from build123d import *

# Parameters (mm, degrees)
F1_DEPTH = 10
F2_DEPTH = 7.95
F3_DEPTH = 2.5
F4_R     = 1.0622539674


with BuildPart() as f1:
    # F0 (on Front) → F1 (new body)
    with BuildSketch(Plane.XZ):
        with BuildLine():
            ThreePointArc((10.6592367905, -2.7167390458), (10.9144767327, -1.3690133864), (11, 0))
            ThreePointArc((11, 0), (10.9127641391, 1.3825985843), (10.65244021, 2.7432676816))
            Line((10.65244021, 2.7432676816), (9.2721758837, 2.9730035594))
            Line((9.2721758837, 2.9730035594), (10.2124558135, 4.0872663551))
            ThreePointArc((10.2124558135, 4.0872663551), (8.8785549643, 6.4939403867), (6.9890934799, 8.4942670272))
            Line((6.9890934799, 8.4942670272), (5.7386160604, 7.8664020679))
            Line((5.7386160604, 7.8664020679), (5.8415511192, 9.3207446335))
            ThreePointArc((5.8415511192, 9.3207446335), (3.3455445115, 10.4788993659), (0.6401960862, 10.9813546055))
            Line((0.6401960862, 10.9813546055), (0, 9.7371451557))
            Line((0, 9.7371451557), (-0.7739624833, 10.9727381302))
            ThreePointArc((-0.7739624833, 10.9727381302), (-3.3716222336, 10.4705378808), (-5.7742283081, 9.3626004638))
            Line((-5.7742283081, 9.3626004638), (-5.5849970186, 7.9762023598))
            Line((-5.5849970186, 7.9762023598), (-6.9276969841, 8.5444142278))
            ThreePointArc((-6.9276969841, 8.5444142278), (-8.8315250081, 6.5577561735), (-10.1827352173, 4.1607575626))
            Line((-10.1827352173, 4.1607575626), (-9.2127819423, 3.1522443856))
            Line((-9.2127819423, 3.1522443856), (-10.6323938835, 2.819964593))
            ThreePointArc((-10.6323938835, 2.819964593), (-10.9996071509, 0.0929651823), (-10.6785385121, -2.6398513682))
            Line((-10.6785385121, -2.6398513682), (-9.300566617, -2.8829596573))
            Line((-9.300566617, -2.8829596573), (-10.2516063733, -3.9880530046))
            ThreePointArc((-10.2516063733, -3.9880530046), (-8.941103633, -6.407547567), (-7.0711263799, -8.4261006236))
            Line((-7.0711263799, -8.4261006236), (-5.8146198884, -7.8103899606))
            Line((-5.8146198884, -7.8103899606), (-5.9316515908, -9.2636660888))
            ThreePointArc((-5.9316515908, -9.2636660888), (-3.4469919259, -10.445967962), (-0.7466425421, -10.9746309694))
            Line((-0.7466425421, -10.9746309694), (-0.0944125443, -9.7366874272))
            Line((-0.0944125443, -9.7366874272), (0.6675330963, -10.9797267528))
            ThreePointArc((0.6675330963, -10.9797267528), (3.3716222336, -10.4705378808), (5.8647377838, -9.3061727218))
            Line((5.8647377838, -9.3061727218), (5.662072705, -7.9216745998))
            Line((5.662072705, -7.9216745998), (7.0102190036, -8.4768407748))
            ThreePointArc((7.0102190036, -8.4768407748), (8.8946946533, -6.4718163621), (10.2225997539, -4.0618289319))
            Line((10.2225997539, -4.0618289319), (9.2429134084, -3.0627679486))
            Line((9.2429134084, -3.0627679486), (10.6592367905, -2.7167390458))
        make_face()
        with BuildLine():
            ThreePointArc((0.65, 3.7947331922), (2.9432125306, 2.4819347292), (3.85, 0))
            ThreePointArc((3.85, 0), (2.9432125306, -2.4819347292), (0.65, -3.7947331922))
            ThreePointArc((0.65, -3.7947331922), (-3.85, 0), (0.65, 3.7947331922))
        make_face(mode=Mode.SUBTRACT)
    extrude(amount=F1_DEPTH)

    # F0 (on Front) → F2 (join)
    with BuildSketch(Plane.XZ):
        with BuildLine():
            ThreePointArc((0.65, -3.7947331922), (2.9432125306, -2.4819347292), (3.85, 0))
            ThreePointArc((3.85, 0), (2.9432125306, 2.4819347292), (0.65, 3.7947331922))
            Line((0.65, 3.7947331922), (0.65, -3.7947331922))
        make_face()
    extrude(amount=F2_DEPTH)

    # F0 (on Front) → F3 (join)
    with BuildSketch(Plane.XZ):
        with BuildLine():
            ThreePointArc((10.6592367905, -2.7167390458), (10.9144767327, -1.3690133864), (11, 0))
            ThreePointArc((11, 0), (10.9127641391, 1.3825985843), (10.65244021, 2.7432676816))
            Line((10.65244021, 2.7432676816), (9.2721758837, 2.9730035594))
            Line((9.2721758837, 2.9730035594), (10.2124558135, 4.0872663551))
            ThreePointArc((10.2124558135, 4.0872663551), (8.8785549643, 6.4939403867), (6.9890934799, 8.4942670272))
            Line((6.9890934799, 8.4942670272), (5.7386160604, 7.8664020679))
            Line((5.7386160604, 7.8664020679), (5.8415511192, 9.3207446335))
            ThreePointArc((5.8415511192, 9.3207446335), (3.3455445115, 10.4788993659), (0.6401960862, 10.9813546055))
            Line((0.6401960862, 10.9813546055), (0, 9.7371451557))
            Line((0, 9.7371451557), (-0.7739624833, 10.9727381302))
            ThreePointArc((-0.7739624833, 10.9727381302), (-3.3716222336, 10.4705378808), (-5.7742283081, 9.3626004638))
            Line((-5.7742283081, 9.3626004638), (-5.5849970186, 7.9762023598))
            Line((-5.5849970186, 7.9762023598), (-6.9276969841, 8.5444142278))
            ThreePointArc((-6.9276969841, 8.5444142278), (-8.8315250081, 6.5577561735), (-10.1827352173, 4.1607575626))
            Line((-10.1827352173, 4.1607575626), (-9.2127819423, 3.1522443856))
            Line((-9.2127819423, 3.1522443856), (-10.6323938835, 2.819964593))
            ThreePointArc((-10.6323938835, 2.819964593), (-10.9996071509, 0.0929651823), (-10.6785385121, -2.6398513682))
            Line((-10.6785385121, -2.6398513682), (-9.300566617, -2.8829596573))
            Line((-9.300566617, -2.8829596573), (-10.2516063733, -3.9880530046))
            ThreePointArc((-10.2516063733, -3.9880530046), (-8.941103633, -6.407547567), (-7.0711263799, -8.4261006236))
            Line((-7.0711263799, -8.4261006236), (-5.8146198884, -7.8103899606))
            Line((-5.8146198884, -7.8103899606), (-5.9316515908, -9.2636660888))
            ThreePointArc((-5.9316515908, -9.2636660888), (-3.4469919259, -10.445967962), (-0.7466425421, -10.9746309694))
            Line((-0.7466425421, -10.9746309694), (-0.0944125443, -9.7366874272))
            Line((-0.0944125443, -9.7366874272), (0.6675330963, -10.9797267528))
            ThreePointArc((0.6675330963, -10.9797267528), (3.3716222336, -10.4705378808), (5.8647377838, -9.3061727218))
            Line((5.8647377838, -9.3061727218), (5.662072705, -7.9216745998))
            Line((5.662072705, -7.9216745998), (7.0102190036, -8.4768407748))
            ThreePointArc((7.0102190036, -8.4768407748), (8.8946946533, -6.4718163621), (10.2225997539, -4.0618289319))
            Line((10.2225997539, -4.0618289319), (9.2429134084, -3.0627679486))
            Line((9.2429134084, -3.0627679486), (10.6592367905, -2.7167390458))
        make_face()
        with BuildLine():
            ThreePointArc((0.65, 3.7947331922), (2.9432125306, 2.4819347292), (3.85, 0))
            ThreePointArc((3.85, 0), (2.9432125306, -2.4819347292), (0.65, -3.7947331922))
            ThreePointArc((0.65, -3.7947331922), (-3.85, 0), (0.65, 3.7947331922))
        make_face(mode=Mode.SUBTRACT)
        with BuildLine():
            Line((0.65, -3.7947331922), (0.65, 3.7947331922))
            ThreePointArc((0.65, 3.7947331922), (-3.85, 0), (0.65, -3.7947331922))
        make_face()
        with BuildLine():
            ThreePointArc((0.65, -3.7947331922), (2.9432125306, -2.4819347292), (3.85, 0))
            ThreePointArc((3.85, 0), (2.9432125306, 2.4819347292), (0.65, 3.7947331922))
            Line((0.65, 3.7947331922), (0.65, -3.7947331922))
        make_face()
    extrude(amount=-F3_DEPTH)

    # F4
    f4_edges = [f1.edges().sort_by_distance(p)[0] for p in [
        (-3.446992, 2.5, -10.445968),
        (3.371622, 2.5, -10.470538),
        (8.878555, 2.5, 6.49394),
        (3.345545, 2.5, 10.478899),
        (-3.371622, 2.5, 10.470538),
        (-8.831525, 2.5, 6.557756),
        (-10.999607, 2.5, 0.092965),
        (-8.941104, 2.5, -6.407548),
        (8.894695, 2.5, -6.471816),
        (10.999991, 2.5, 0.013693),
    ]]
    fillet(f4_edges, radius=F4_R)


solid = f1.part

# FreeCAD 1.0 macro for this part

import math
import FreeCAD as App
import Part
import Sketcher
from FreeCAD import Vector


def edges_at(feature, points):
    """Names of the edges that pass closest to the given points."""
    edges = feature.Shape.Edges
    near = lambda p: min(range(len(edges)), key=lambda i: edges[i].distToShape(Part.Vertex(*p))[0])
    return sorted({f"Edge{near(p) + 1}" for p in points})

doc = App.newDocument("Part")
body = doc.addObject("PartDesign::Body", "Body")

# Sketch on XZ plane
sketch1 = body.newObject("Sketcher::SketchObject", "Sketch")
sketch1.AttachmentSupport = (doc.getObject("XZ_Plane"), [""])
sketch1.MapMode = "FlatFace"
sketch1.addGeometry([
    Part.ArcOfCircle(Part.Circle(Vector(0, 0, 0), Vector(0, 0, 1), 11), math.radians(-14.3), math.radians(0)),  # 0
    Part.ArcOfCircle(Part.Circle(Vector(0, 0, 0), Vector(0, 0, 1), 11), math.radians(0), math.radians(14.44)),  # 1
    Part.LineSegment(Vector(10.7, 2.7, 0), Vector(9.3, 3, 0)),  # 2
    Part.LineSegment(Vector(9.3, 3, 0), Vector(10.2, 4.1, 0)),  # 3
    Part.ArcOfCircle(Part.Circle(Vector(0, 0, 0), Vector(0, 0, 1), 11), math.radians(22), math.radians(51)),  # 4
    Part.LineSegment(Vector(7, 8.5, 0), Vector(5.7, 7.9, 0)),  # 5
    Part.LineSegment(Vector(5.7, 7.9, 0), Vector(5.8, 9.3, 0)),  # 6
    Part.ArcOfCircle(Part.Circle(Vector(0, 0, 0), Vector(0, 0, 1), 11), math.radians(58), math.radians(87)),  # 7
    Part.LineSegment(Vector(0.6, 11, 0), Vector(0, 9.7, 0)),  # 8
    Part.LineSegment(Vector(0, 9.7, 0), Vector(-0.8, 11, 0)),  # 9
    Part.ArcOfCircle(Part.Circle(Vector(0, 0, 0), Vector(0, 0, 1), 11), math.radians(94), math.radians(122)),  # 10
    Part.LineSegment(Vector(-5.8, 9.4, 0), Vector(-5.6, 8, 0)),  # 11
    Part.LineSegment(Vector(-5.6, 8, 0), Vector(-6.9, 8.5, 0)),  # 12
    Part.ArcOfCircle(Part.Circle(Vector(0, 0, 0), Vector(0, 0, 1), 11), math.radians(129), math.radians(158)),  # 13
    Part.LineSegment(Vector(-10.2, 4.2, 0), Vector(-9.2, 3.2, 0)),  # 14
    Part.LineSegment(Vector(-9.2, 3.2, 0), Vector(-10.6, 2.8, 0)),  # 15
    Part.ArcOfCircle(Part.Circle(Vector(0, 0, 0), Vector(0, 0, 1), 11), math.radians(165), math.radians(194)),  # 16
    Part.LineSegment(Vector(-10.7, -2.6, 0), Vector(-9.3, -2.9, 0)),  # 17
    Part.LineSegment(Vector(-9.3, -2.9, 0), Vector(-10.3, -4, 0)),  # 18
    Part.ArcOfCircle(Part.Circle(Vector(0, 0, 0), Vector(0, 0, 1), 11), math.radians(-159), math.radians(-130)),  # 19
    Part.LineSegment(Vector(-7.1, -8.4, 0), Vector(-5.8, -7.8, 0)),  # 20
    Part.LineSegment(Vector(-5.8, -7.8, 0), Vector(-5.9, -9.3, 0)),  # 21
    Part.ArcOfCircle(Part.Circle(Vector(0, 0, 0), Vector(0, 0, 1), 11), math.radians(-123), math.radians(-94)),  # 22
    Part.LineSegment(Vector(-0.7, -11, 0), Vector(-0.1, -9.7, 0)),  # 23
    Part.LineSegment(Vector(-0.1, -9.7, 0), Vector(0.7, -11, 0)),  # 24
    Part.ArcOfCircle(Part.Circle(Vector(0, 0, 0), Vector(0, 0, 1), 11), math.radians(-87), math.radians(-58)),  # 25
    Part.LineSegment(Vector(5.9, -9.3, 0), Vector(5.7, -7.9, 0)),  # 26
    Part.LineSegment(Vector(5.7, -7.9, 0), Vector(7, -8.5, 0)),  # 27
    Part.ArcOfCircle(Part.Circle(Vector(0, 0, 0), Vector(0, 0, 1), 11), math.radians(-50), math.radians(-22)),  # 28
    Part.LineSegment(Vector(10.2, -4.1, 0), Vector(9.2, -3.1, 0)),  # 29
    Part.LineSegment(Vector(9.2, -3.1, 0), Vector(10.7, -2.7, 0)),  # 30
    Part.ArcOfCircle(Part.Circle(Vector(0, 0, 0), Vector(0, 0, 1), 3.9), math.radians(80), math.radians(280)),  # 31
    Part.ArcOfCircle(Part.Circle(Vector(0, 0, 0), Vector(0, 0, 1), 3.9), math.radians(0), math.radians(80)),  # 32
    Part.ArcOfCircle(Part.Circle(Vector(0, 0, 0), Vector(0, 0, 1), 3.9), math.radians(-80), math.radians(0)),  # 33
], False)
sketch1.addConstraint([
    Sketcher.Constraint("Tangent", 0, 2, 1, 1),
    Sketcher.Constraint("Coincident", 1, 2, 2, 1),
    Sketcher.Constraint("Coincident", 2, 2, 3, 1),
    Sketcher.Constraint("Coincident", 3, 2, 4, 1),
    Sketcher.Constraint("Coincident", 4, 2, 5, 1),
    Sketcher.Constraint("Coincident", 5, 2, 6, 1),
    Sketcher.Constraint("Coincident", 6, 2, 7, 1),
    Sketcher.Constraint("Coincident", 7, 2, 8, 1),
    Sketcher.Constraint("Coincident", 8, 2, 9, 1),
    Sketcher.Constraint("Coincident", 9, 2, 10, 1),
    Sketcher.Constraint("Coincident", 10, 2, 11, 1),
    Sketcher.Constraint("Coincident", 11, 2, 12, 1),
    Sketcher.Constraint("Coincident", 12, 2, 13, 1),
    Sketcher.Constraint("Coincident", 13, 2, 14, 1),
    Sketcher.Constraint("Coincident", 14, 2, 15, 1),
    Sketcher.Constraint("Coincident", 15, 2, 16, 1),
    Sketcher.Constraint("Coincident", 16, 2, 17, 1),
    Sketcher.Constraint("Coincident", 17, 2, 18, 1),
    Sketcher.Constraint("Coincident", 18, 2, 19, 1),
    Sketcher.Constraint("Coincident", 19, 2, 20, 1),
    Sketcher.Constraint("Coincident", 20, 2, 21, 1),
    Sketcher.Constraint("Coincident", 21, 2, 22, 1),
    Sketcher.Constraint("Coincident", 22, 2, 23, 1),
    Sketcher.Constraint("Coincident", 23, 2, 24, 1),
    Sketcher.Constraint("Coincident", 24, 2, 25, 1),
    Sketcher.Constraint("Coincident", 25, 2, 26, 1),
    Sketcher.Constraint("Coincident", 26, 2, 27, 1),
    Sketcher.Constraint("Coincident", 27, 2, 28, 1),
    Sketcher.Constraint("Coincident", 28, 2, 29, 1),
    Sketcher.Constraint("Coincident", 29, 2, 30, 1),
    Sketcher.Constraint("Coincident", 30, 2, 0, 1),
    Sketcher.Constraint("Tangent", 31, 1, 32, 2),
    Sketcher.Constraint("Tangent", 32, 1, 33, 2),
    Sketcher.Constraint("Tangent", 33, 1, 31, 2),
    Sketcher.Constraint("Coincident", 0, 3, -1, 1),
    Sketcher.Constraint("Coincident", 4, 3, -1, 1),
    Sketcher.Constraint("Coincident", 7, 3, -1, 1),
    Sketcher.Constraint("Coincident", 10, 3, -1, 1),
    Sketcher.Constraint("Coincident", 13, 3, -1, 1),
    Sketcher.Constraint("Coincident", 16, 3, -1, 1),
    Sketcher.Constraint("Coincident", 19, 3, -1, 1),
    Sketcher.Constraint("Coincident", 22, 3, -1, 1),
    Sketcher.Constraint("Coincident", 25, 3, -1, 1),
    Sketcher.Constraint("Coincident", 28, 3, -1, 1),
    Sketcher.Constraint("Coincident", 31, 3, -1, 1),
    Sketcher.Constraint("Equal", 0, 1),
    Sketcher.Constraint("Equal", 1, 4),
    Sketcher.Constraint("Equal", 4, 7),
    Sketcher.Constraint("Equal", 7, 10),
    Sketcher.Constraint("Equal", 10, 13),
    Sketcher.Constraint("Equal", 13, 16),
    Sketcher.Constraint("Equal", 16, 19),
    Sketcher.Constraint("Equal", 19, 22),
    Sketcher.Constraint("Equal", 22, 25),
    Sketcher.Constraint("Equal", 25, 28),
    Sketcher.Constraint("PointOnObject", 0, 2, -1),
    Sketcher.Constraint("PointOnObject", 8, 2, -2),
    Sketcher.Constraint("PointOnObject", 32, 1, -1),
    Sketcher.Constraint("Vertical", 31, 1, 33, 1),
    Sketcher.Constraint("Equal", 2, 5),
    Sketcher.Constraint("Equal", 3, 6),
    Sketcher.Constraint("Equal", 5, 8),
    Sketcher.Constraint("Equal", 6, 9),
    Sketcher.Constraint("Equal", 8, 11),
    Sketcher.Constraint("Equal", 9, 12),
    Sketcher.Constraint("Equal", 11, 14),
    Sketcher.Constraint("Equal", 12, 15),
    Sketcher.Constraint("Equal", 14, 17),
    Sketcher.Constraint("Equal", 15, 18),
    Sketcher.Constraint("Equal", 17, 20),
    Sketcher.Constraint("Equal", 18, 21),
    Sketcher.Constraint("Equal", 20, 23),
    Sketcher.Constraint("Equal", 21, 24),
    Sketcher.Constraint("Equal", 23, 26),
    Sketcher.Constraint("Equal", 24, 27),
    Sketcher.Constraint("Equal", 26, 29),
    Sketcher.Constraint("Equal", 27, 30),
    Sketcher.Constraint("Radius", 0, 11.0),
    Sketcher.Constraint("Radius", 31, 3.85),
    Sketcher.Constraint("DistanceX", -1, 1, 31, 1, 0.65),
    Sketcher.Constraint("DistanceY", 1, 2, 3, 2, 1.343999),
    Sketcher.Constraint("DistanceY", 3, 2, 4, 2, 4.407001),
    Sketcher.Constraint("DistanceY", -1, 1, 10, 2, 9.3626),
    Sketcher.Constraint("DistanceY", 19, 2, -1, 1, 8.426101),
    Sketcher.Constraint("DistanceX", -1, 1, 28, 2, 10.2226),
    Sketcher.Constraint("DistanceY", 2, 2, 5, 2, 4.893399),
    Sketcher.Constraint("DistanceY", 6, 2, 8, 2, 0.416401),
    Sketcher.Constraint("DistanceY", 11, 2, 10, 2, 1.386398),
    Sketcher.Constraint("DistanceX", 12, 2, 11, 2, 1.3427),
    Sketcher.Constraint("DistanceY", 18, 2, 16, 2, 1.348202),
    Sketcher.Constraint("DistanceY", 25, 2, 26, 2, 1.384498),
    Sketcher.Constraint("Distance", 3, 1.457981),
    Sketcher.Constraint("DistanceX", -1, 1, 1, 2, 10.65244),
    Sketcher.Constraint("DistanceX", 14, 2, -1, 1, 9.212782),
    Sketcher.Constraint("DistanceX", 16, 2, -1, 1, 10.678539),
    Sketcher.Constraint("DistanceX", 20, 2, -1, 1, 5.81462),
    Sketcher.Constraint("DistanceY", 22, 2, -1, 1, 10.974631),
    Sketcher.Constraint("DistanceX", -1, 1, 27, 2, 7.010219),
    Sketcher.Constraint("DistanceY", 30, 2, -1, 1, 2.716739),
    Sketcher.Constraint("DistanceX", 13, 2, 12, 2, 3.255038),
    Sketcher.Constraint("DistanceX", 22, 2, 23, 2, 0.65223),
])
pad1 = body.newObject("PartDesign::Pad", "Pad")
pad1.Profile = sketch1
pad1.Length = 10

# Sketch on XZ plane
sketch2 = body.newObject("Sketcher::SketchObject", "Sketch001")
sketch2.AttachmentSupport = (doc.getObject("XZ_Plane"), [""])
sketch2.MapMode = "FlatFace"
sketch2.addGeometry([
    Part.ArcOfCircle(Part.Circle(Vector(0, 0, 0), Vector(0, 0, 1), 3.9), math.radians(-80), math.radians(0)),
    Part.ArcOfCircle(Part.Circle(Vector(0, 0, 0), Vector(0, 0, 1), 3.9), math.radians(0), math.radians(80)),
    Part.LineSegment(Vector(0.7, 3.8, 0), Vector(0.7, -3.8, 0)),
], False)
sketch2.addConstraint([
    Sketcher.Constraint("Tangent", 0, 2, 1, 1),
    Sketcher.Constraint("Coincident", 1, 2, 2, 1),
    Sketcher.Constraint("Coincident", 2, 2, 0, 1),
    Sketcher.Constraint("Vertical", 2),
    Sketcher.Constraint("Coincident", 0, 3, -1, 1),
    Sketcher.Constraint("Equal", 0, 1),
    Sketcher.Constraint("PointOnObject", 0, 2, -1),
    Sketcher.Constraint("Radius", 0, 3.85),
    Sketcher.Constraint("DistanceX", 1, 2, 0, 2, 3.2),
])
pad2 = body.newObject("PartDesign::Pad", "Pad001")
pad2.Profile = sketch2
pad2.Length = 7.95

# Sketch on XZ plane
sketch3 = body.newObject("Sketcher::SketchObject", "Sketch002")
sketch3.AttachmentSupport = (doc.getObject("XZ_Plane"), [""])
sketch3.MapMode = "FlatFace"
sketch3.addGeometry([
    Part.ArcOfCircle(Part.Circle(Vector(0, 0, 0), Vector(0, 0, 1), 11), math.radians(-14.3), math.radians(0)),  # 0
    Part.ArcOfCircle(Part.Circle(Vector(0, 0, 0), Vector(0, 0, 1), 11), math.radians(0), math.radians(14.44)),  # 1
    Part.LineSegment(Vector(10.7, 2.7, 0), Vector(9.3, 3, 0)),  # 2
    Part.LineSegment(Vector(9.3, 3, 0), Vector(10.2, 4.1, 0)),  # 3
    Part.ArcOfCircle(Part.Circle(Vector(0, 0, 0), Vector(0, 0, 1), 11), math.radians(22), math.radians(51)),  # 4
    Part.LineSegment(Vector(7, 8.5, 0), Vector(5.7, 7.9, 0)),  # 5
    Part.LineSegment(Vector(5.7, 7.9, 0), Vector(5.8, 9.3, 0)),  # 6
    Part.ArcOfCircle(Part.Circle(Vector(0, 0, 0), Vector(0, 0, 1), 11), math.radians(58), math.radians(87)),  # 7
    Part.LineSegment(Vector(0.6, 11, 0), Vector(0, 9.7, 0)),  # 8
    Part.LineSegment(Vector(0, 9.7, 0), Vector(-0.8, 11, 0)),  # 9
    Part.ArcOfCircle(Part.Circle(Vector(0, 0, 0), Vector(0, 0, 1), 11), math.radians(94), math.radians(122)),  # 10
    Part.LineSegment(Vector(-5.8, 9.4, 0), Vector(-5.6, 8, 0)),  # 11
    Part.LineSegment(Vector(-5.6, 8, 0), Vector(-6.9, 8.5, 0)),  # 12
    Part.ArcOfCircle(Part.Circle(Vector(0, 0, 0), Vector(0, 0, 1), 11), math.radians(129), math.radians(158)),  # 13
    Part.LineSegment(Vector(-10.2, 4.2, 0), Vector(-9.2, 3.2, 0)),  # 14
    Part.LineSegment(Vector(-9.2, 3.2, 0), Vector(-10.6, 2.8, 0)),  # 15
    Part.ArcOfCircle(Part.Circle(Vector(0, 0, 0), Vector(0, 0, 1), 11), math.radians(165), math.radians(194)),  # 16
    Part.LineSegment(Vector(-10.7, -2.6, 0), Vector(-9.3, -2.9, 0)),  # 17
    Part.LineSegment(Vector(-9.3, -2.9, 0), Vector(-10.3, -4, 0)),  # 18
    Part.ArcOfCircle(Part.Circle(Vector(0, 0, 0), Vector(0, 0, 1), 11), math.radians(-159), math.radians(-130)),  # 19
    Part.LineSegment(Vector(-7.1, -8.4, 0), Vector(-5.8, -7.8, 0)),  # 20
    Part.LineSegment(Vector(-5.8, -7.8, 0), Vector(-5.9, -9.3, 0)),  # 21
    Part.ArcOfCircle(Part.Circle(Vector(0, 0, 0), Vector(0, 0, 1), 11), math.radians(-123), math.radians(-94)),  # 22
    Part.LineSegment(Vector(-0.7, -11, 0), Vector(-0.1, -9.7, 0)),  # 23
    Part.LineSegment(Vector(-0.1, -9.7, 0), Vector(0.7, -11, 0)),  # 24
    Part.ArcOfCircle(Part.Circle(Vector(0, 0, 0), Vector(0, 0, 1), 11), math.radians(-87), math.radians(-58)),  # 25
    Part.LineSegment(Vector(5.9, -9.3, 0), Vector(5.7, -7.9, 0)),  # 26
    Part.LineSegment(Vector(5.7, -7.9, 0), Vector(7, -8.5, 0)),  # 27
    Part.ArcOfCircle(Part.Circle(Vector(0, 0, 0), Vector(0, 0, 1), 11), math.radians(-50), math.radians(-22)),  # 28
    Part.LineSegment(Vector(10.2, -4.1, 0), Vector(9.2, -3.1, 0)),  # 29
    Part.LineSegment(Vector(9.2, -3.1, 0), Vector(10.7, -2.7, 0)),  # 30
], False)
sketch3.addConstraint([
    Sketcher.Constraint("Tangent", 0, 2, 1, 1),
    Sketcher.Constraint("Coincident", 1, 2, 2, 1),
    Sketcher.Constraint("Coincident", 2, 2, 3, 1),
    Sketcher.Constraint("Coincident", 3, 2, 4, 1),
    Sketcher.Constraint("Coincident", 4, 2, 5, 1),
    Sketcher.Constraint("Coincident", 5, 2, 6, 1),
    Sketcher.Constraint("Coincident", 6, 2, 7, 1),
    Sketcher.Constraint("Coincident", 7, 2, 8, 1),
    Sketcher.Constraint("Coincident", 8, 2, 9, 1),
    Sketcher.Constraint("Coincident", 9, 2, 10, 1),
    Sketcher.Constraint("Coincident", 10, 2, 11, 1),
    Sketcher.Constraint("Coincident", 11, 2, 12, 1),
    Sketcher.Constraint("Coincident", 12, 2, 13, 1),
    Sketcher.Constraint("Coincident", 13, 2, 14, 1),
    Sketcher.Constraint("Coincident", 14, 2, 15, 1),
    Sketcher.Constraint("Coincident", 15, 2, 16, 1),
    Sketcher.Constraint("Coincident", 16, 2, 17, 1),
    Sketcher.Constraint("Coincident", 17, 2, 18, 1),
    Sketcher.Constraint("Coincident", 18, 2, 19, 1),
    Sketcher.Constraint("Coincident", 19, 2, 20, 1),
    Sketcher.Constraint("Coincident", 20, 2, 21, 1),
    Sketcher.Constraint("Coincident", 21, 2, 22, 1),
    Sketcher.Constraint("Coincident", 22, 2, 23, 1),
    Sketcher.Constraint("Coincident", 23, 2, 24, 1),
    Sketcher.Constraint("Coincident", 24, 2, 25, 1),
    Sketcher.Constraint("Coincident", 25, 2, 26, 1),
    Sketcher.Constraint("Coincident", 26, 2, 27, 1),
    Sketcher.Constraint("Coincident", 27, 2, 28, 1),
    Sketcher.Constraint("Coincident", 28, 2, 29, 1),
    Sketcher.Constraint("Coincident", 29, 2, 30, 1),
    Sketcher.Constraint("Coincident", 30, 2, 0, 1),
    Sketcher.Constraint("Coincident", 0, 3, -1, 1),
    Sketcher.Constraint("Coincident", 4, 3, -1, 1),
    Sketcher.Constraint("Coincident", 7, 3, -1, 1),
    Sketcher.Constraint("Coincident", 10, 3, -1, 1),
    Sketcher.Constraint("Coincident", 13, 3, -1, 1),
    Sketcher.Constraint("Coincident", 16, 3, -1, 1),
    Sketcher.Constraint("Coincident", 19, 3, -1, 1),
    Sketcher.Constraint("Coincident", 22, 3, -1, 1),
    Sketcher.Constraint("Coincident", 25, 3, -1, 1),
    Sketcher.Constraint("Coincident", 28, 3, -1, 1),
    Sketcher.Constraint("Equal", 0, 1),
    Sketcher.Constraint("Equal", 1, 4),
    Sketcher.Constraint("Equal", 4, 7),
    Sketcher.Constraint("Equal", 7, 10),
    Sketcher.Constraint("Equal", 10, 13),
    Sketcher.Constraint("Equal", 13, 16),
    Sketcher.Constraint("Equal", 16, 19),
    Sketcher.Constraint("Equal", 19, 22),
    Sketcher.Constraint("Equal", 22, 25),
    Sketcher.Constraint("Equal", 25, 28),
    Sketcher.Constraint("PointOnObject", 0, 2, -1),
    Sketcher.Constraint("PointOnObject", 8, 2, -2),
    Sketcher.Constraint("Equal", 2, 5),
    Sketcher.Constraint("Equal", 3, 6),
    Sketcher.Constraint("Equal", 5, 8),
    Sketcher.Constraint("Equal", 6, 9),
    Sketcher.Constraint("Equal", 8, 11),
    Sketcher.Constraint("Equal", 9, 12),
    Sketcher.Constraint("Equal", 11, 14),
    Sketcher.Constraint("Equal", 12, 15),
    Sketcher.Constraint("Equal", 14, 17),
    Sketcher.Constraint("Equal", 15, 18),
    Sketcher.Constraint("Equal", 17, 20),
    Sketcher.Constraint("Equal", 18, 21),
    Sketcher.Constraint("Equal", 20, 23),
    Sketcher.Constraint("Equal", 21, 24),
    Sketcher.Constraint("Equal", 23, 26),
    Sketcher.Constraint("Equal", 24, 27),
    Sketcher.Constraint("Equal", 26, 29),
    Sketcher.Constraint("Equal", 27, 30),
    Sketcher.Constraint("Radius", 0, 11.0),
    Sketcher.Constraint("DistanceY", 1, 2, 3, 2, 1.343999),
    Sketcher.Constraint("DistanceY", 3, 2, 4, 2, 4.407001),
    Sketcher.Constraint("DistanceY", -1, 1, 10, 2, 9.3626),
    Sketcher.Constraint("DistanceY", 19, 2, -1, 1, 8.426101),
    Sketcher.Constraint("DistanceX", -1, 1, 28, 2, 10.2226),
    Sketcher.Constraint("DistanceY", 2, 2, 5, 2, 4.893399),
    Sketcher.Constraint("DistanceY", 6, 2, 8, 2, 0.416401),
    Sketcher.Constraint("DistanceY", 11, 2, 10, 2, 1.386398),
    Sketcher.Constraint("DistanceX", 12, 2, 11, 2, 1.3427),
    Sketcher.Constraint("DistanceY", 18, 2, 16, 2, 1.348202),
    Sketcher.Constraint("DistanceY", 25, 2, 26, 2, 1.384498),
    Sketcher.Constraint("Distance", 3, 1.457981),
    Sketcher.Constraint("DistanceX", -1, 1, 1, 2, 10.65244),
    Sketcher.Constraint("DistanceX", 14, 2, -1, 1, 9.212782),
    Sketcher.Constraint("DistanceX", 16, 2, -1, 1, 10.678539),
    Sketcher.Constraint("DistanceX", 20, 2, -1, 1, 5.81462),
    Sketcher.Constraint("DistanceY", 22, 2, -1, 1, 10.974631),
    Sketcher.Constraint("DistanceX", -1, 1, 27, 2, 7.010219),
    Sketcher.Constraint("DistanceY", 30, 2, -1, 1, 2.716739),
    Sketcher.Constraint("DistanceX", 13, 2, 12, 2, 3.255038),
    Sketcher.Constraint("DistanceX", 22, 2, 23, 2, 0.65223),
])
pad3 = body.newObject("PartDesign::Pad", "Pad002")
pad3.Profile = sketch3
pad3.Length = 2.5
pad3.Reversed = True
doc.recompute()

fillet = body.newObject("PartDesign::Fillet", "Fillet")
fillet.Base = (pad3, edges_at(pad3, [
    (-3.447, 2.5, -10.446),
    (3.372, 2.5, -10.471),
    (8.879, 2.5, 6.494),
    (3.346, 2.5, 10.479),
    (-3.372, 2.5, 10.471),
    (-8.832, 2.5, 6.558),
    (-11, 2.5, 0.093),
    (-8.941, 2.5, -6.408),
    (8.895, 2.5, -6.472),
    (10.913, 2.5, 1.383),
]))
fillet.Radius = 1.062254

doc.recompute()
